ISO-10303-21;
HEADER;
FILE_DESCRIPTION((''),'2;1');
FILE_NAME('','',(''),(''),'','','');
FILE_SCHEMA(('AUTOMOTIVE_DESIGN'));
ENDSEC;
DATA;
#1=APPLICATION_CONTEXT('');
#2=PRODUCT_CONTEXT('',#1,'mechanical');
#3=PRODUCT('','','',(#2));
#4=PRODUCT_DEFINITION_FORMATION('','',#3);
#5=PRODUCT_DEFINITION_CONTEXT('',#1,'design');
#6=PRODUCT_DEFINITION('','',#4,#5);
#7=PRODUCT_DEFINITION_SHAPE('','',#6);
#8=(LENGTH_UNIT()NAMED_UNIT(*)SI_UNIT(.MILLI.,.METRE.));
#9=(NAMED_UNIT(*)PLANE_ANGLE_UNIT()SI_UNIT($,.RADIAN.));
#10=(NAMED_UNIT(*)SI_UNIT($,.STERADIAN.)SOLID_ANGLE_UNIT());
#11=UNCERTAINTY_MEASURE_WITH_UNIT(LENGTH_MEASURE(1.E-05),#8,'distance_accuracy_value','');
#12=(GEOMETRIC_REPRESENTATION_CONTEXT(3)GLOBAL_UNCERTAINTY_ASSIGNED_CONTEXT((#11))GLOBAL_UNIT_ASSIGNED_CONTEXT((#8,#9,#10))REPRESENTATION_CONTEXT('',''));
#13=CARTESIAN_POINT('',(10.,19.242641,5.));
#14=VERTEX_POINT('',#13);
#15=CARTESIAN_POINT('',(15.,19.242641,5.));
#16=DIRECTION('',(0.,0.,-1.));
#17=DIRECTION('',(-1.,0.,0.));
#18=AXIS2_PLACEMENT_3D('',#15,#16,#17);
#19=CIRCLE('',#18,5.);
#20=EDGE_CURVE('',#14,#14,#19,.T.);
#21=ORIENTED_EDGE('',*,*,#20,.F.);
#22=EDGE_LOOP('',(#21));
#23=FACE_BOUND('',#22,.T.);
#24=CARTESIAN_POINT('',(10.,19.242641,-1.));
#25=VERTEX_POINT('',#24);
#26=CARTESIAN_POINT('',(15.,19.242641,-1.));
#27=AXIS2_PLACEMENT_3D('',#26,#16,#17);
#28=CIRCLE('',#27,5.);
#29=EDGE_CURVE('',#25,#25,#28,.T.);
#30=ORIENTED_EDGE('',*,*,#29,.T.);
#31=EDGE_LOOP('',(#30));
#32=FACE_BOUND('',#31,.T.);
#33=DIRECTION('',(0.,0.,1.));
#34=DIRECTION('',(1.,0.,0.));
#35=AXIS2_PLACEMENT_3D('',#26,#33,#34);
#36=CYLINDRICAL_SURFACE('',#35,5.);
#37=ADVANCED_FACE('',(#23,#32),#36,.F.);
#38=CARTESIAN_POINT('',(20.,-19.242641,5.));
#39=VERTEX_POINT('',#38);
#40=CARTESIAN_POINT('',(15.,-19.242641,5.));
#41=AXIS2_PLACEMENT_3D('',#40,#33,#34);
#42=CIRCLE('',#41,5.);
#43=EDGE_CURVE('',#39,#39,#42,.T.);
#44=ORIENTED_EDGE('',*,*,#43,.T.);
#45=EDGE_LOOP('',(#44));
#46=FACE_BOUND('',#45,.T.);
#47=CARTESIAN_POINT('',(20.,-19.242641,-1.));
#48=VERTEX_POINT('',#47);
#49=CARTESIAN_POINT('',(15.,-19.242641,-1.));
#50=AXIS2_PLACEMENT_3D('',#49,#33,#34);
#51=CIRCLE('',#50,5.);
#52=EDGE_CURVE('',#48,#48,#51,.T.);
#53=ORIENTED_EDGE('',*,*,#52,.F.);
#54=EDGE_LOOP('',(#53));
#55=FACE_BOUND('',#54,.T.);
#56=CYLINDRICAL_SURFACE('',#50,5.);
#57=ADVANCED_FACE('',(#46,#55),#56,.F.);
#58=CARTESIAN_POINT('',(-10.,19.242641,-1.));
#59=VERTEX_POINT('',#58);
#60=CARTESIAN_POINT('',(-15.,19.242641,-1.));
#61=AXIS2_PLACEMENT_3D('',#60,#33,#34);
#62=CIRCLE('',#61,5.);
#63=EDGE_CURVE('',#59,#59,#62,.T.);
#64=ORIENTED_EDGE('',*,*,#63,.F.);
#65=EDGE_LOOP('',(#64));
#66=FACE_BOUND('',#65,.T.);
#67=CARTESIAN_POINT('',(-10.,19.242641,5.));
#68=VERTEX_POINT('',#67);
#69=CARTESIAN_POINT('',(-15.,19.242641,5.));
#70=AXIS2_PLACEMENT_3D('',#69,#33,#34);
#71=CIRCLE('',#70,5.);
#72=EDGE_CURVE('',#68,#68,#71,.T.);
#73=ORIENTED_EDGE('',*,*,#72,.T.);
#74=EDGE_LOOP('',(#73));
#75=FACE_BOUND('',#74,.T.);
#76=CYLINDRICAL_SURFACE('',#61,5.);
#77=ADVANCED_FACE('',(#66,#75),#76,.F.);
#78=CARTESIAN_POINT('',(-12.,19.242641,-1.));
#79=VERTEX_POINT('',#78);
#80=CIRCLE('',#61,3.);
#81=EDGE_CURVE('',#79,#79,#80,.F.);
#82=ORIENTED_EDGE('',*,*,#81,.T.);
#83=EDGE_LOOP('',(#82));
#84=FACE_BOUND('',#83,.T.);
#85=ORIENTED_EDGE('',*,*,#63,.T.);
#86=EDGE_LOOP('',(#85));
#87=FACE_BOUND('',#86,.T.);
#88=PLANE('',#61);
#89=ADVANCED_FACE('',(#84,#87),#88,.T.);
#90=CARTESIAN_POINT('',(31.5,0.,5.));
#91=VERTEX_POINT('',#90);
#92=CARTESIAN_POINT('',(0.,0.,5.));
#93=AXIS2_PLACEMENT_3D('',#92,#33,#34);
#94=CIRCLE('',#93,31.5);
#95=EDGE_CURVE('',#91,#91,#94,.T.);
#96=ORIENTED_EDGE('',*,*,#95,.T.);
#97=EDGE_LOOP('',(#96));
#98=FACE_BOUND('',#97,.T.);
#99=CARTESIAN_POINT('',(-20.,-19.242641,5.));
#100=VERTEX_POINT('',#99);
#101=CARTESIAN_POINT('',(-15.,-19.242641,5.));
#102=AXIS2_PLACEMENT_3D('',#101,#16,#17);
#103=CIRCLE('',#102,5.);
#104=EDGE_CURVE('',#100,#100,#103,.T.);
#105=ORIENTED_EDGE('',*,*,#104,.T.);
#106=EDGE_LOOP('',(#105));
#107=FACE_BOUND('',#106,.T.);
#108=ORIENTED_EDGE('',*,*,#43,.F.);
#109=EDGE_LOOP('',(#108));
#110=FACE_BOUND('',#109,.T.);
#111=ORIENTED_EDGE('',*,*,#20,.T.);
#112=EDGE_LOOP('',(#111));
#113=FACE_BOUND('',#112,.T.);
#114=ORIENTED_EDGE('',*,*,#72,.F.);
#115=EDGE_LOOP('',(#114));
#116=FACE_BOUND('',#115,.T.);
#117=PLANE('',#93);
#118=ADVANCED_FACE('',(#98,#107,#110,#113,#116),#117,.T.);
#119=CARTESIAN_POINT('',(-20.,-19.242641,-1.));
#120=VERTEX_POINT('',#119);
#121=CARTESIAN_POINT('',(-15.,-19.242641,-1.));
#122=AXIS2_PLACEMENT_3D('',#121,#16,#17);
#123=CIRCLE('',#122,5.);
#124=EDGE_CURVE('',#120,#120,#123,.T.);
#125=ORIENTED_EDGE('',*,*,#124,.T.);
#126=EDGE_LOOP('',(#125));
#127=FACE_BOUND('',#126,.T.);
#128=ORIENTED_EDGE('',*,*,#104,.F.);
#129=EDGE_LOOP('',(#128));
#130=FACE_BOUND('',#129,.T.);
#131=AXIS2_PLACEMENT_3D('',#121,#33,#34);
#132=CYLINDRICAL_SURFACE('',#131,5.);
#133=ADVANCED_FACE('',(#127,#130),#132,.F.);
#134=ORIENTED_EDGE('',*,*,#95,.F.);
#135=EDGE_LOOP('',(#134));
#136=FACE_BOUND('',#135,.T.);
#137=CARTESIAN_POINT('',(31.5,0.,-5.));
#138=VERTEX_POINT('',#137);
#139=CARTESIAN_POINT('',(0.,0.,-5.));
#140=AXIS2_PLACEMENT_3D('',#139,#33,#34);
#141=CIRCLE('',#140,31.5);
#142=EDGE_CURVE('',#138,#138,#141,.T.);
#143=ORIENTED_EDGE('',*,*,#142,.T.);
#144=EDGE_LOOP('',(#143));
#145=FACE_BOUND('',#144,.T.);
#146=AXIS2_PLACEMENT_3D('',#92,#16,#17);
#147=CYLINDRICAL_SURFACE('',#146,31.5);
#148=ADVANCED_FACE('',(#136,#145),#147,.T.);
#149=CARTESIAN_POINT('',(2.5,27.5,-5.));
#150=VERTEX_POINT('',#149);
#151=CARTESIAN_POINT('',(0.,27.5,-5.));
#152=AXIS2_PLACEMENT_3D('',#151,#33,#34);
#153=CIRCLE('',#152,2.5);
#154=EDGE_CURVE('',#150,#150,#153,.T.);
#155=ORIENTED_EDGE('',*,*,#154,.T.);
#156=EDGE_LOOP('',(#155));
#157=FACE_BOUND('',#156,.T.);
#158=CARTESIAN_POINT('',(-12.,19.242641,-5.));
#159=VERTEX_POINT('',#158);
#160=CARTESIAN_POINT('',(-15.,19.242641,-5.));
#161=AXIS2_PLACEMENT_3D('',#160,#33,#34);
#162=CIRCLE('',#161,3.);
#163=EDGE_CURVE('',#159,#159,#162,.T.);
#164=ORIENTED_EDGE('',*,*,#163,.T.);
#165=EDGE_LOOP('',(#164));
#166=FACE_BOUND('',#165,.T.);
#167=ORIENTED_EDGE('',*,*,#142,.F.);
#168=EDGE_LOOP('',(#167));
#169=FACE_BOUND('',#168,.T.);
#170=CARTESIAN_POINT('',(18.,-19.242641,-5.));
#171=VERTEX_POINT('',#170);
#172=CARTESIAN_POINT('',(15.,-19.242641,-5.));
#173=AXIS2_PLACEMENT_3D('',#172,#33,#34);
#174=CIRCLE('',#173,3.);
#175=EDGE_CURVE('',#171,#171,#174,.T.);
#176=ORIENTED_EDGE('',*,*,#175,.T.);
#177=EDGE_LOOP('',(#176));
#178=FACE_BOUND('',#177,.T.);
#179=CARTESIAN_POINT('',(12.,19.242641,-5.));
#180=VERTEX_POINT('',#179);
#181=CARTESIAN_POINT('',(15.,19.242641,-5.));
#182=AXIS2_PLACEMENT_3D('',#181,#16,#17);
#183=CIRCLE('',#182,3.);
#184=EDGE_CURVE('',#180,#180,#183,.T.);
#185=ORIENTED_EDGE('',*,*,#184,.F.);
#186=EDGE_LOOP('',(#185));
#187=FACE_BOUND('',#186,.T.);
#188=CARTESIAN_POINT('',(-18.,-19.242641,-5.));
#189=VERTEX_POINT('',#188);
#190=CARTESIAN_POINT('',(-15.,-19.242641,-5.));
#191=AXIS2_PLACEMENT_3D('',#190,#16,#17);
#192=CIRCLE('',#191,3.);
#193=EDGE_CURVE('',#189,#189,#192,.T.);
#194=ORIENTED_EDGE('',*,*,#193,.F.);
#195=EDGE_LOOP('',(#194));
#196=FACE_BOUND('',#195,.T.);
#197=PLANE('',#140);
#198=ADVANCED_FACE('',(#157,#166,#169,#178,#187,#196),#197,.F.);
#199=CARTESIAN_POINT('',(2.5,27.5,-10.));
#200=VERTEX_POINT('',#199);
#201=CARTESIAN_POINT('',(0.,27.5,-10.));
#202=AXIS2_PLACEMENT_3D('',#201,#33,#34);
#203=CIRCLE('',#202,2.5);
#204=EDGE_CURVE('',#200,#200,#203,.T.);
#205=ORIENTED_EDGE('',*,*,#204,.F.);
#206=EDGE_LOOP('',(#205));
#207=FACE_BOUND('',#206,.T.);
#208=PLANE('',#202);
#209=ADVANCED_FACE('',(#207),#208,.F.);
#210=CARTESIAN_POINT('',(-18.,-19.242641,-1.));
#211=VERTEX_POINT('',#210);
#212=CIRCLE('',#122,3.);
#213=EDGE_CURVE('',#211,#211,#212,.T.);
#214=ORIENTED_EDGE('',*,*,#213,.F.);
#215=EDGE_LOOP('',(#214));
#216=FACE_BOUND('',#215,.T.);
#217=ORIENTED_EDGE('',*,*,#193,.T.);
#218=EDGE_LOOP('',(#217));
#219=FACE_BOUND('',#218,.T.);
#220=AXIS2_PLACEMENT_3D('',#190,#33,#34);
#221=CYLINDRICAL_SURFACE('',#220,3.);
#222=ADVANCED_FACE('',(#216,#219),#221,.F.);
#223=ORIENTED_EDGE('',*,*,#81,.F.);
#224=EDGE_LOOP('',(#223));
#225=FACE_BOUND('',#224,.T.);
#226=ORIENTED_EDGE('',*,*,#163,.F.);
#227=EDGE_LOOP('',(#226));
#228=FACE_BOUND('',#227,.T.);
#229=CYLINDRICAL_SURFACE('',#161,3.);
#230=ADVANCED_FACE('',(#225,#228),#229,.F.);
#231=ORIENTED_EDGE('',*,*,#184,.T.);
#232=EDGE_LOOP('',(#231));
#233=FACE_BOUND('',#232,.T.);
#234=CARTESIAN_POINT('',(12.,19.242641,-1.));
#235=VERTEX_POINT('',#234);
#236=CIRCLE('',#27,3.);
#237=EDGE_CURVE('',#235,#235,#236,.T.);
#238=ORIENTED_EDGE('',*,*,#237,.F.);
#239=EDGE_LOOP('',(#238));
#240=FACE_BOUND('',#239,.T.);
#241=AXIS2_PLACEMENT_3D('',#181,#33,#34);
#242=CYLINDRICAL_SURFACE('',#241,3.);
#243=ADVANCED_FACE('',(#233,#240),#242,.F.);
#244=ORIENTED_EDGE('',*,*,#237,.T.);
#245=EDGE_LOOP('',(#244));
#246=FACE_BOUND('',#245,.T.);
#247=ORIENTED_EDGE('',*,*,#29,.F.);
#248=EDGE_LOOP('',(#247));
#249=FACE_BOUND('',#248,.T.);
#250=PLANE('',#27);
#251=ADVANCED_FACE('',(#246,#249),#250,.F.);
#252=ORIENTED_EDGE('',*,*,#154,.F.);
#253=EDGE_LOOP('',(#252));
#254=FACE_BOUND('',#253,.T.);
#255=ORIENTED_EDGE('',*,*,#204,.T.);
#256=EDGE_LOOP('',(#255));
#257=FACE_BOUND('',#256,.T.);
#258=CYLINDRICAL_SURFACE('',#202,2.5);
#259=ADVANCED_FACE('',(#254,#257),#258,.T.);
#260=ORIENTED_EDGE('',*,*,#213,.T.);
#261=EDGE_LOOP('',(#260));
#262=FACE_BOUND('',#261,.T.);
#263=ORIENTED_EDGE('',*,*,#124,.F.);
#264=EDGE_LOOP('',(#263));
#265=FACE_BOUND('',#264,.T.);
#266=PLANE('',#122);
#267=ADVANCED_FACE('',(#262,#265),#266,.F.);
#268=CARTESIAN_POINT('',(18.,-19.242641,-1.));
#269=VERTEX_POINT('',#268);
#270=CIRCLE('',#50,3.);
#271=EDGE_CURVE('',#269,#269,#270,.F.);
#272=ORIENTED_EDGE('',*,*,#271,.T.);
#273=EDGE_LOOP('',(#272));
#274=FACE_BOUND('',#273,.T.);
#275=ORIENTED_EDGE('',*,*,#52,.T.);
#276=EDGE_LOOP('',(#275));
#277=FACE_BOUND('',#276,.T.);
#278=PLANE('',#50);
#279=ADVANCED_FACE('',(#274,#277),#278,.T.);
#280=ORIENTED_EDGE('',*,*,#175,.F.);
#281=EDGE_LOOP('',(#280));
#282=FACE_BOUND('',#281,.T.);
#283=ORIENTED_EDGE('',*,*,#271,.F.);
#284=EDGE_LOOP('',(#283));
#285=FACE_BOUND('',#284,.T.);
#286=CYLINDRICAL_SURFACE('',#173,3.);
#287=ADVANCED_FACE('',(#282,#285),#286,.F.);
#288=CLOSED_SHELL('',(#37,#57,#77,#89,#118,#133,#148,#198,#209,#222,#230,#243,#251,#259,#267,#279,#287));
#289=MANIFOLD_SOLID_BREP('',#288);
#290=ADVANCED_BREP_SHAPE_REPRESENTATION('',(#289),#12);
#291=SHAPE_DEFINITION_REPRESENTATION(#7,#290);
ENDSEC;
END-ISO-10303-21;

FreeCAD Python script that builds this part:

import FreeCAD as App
import Part
import Sketcher

V = App.Vector

doc = App.newDocument("Part")
params = doc.addObject("Spreadsheet::Sheet", "Params")
for row, (alias, value) in enumerate([
    ("sketch1_diameter", "63 mm"),
    ("pad1_length", "10 mm"),
    ("sketch2_diameter", "6 mm"),
    ("sketch3_diameter", "5 mm"),
    ("pad2_length", "15 mm"),
    ("sketch4_diameter", "10 mm"),
    ("pocket2_length", "6 mm"),
], start=1):
    params.set(f"A{row}", alias)
    params.set(f"B{row}", "=" + value)
    params.setAlias(f"B{row}", alias)

body = doc.addObject("PartDesign::Body", "Body")

sketch1 = body.newObject("Sketcher::SketchObject", "Sketch")
sketch1.AttachmentSupport = (doc.getObject("XY_Plane"), [""])
sketch1.MapMode = "FlatFace"
sketch1.addGeometry(Part.Circle(V(0, 0, 0), V(0, 0, 1), 31.5), False)
sketch1.addConstraint([
    Sketcher.Constraint("Coincident", 0, 3, -1, 1),
    Sketcher.Constraint("Diameter", 0, 63.0),
])
sketch1.setExpression("Constraints[1]", "Params.sketch1_diameter")
pad1 = body.newObject("PartDesign::Pad", "Pad")
pad1.Profile = sketch1
pad1.setExpression("Length", "Params.pad1_length")
pad1.Midplane = True

sketch2 = body.newObject("Sketcher::SketchObject", "Sketch001")
sketch2.AttachmentSupport = (doc.getObject("XY_Plane"), [""])
sketch2.MapMode = "FlatFace"
sketch2.AttachmentOffset = App.Placement(V(0, 0, 5), App.Rotation())
sketch2.addGeometry([
    Part.Circle(V(-15, 19.242641, 0), V(0, 0, 1), 3),
    Part.Circle(V(-15, -19.242641, 0), V(0, 0, 1), 3),
    Part.Circle(V(15, -19.242641, 0), V(0, 0, 1), 3),
    Part.Circle(V(15, 19.242641, 0), V(0, 0, 1), 3),
], False)
sketch2.addConstraint([
    Sketcher.Constraint("Equal", 0, 1),
    Sketcher.Constraint("Equal", 1, 2),
    Sketcher.Constraint("Equal", 2, 3),
    Sketcher.Constraint("Symmetric", 0, 3, 2, 3, -1, 1),
    Sketcher.Constraint("Symmetric", 1, 3, 3, 3, -1, 1),
    Sketcher.Constraint("Symmetric", 1, 3, 2, 3, -2),
    Sketcher.Constraint("Diameter", 0, 6.0),
    Sketcher.Constraint("DistanceX", 0, 3, -1, 1, 15.0),
    Sketcher.Constraint("DistanceY", -1, 1, 0, 3, 19.242641),
])
sketch2.setExpression("Constraints[6]", "Params.sketch2_diameter")
pocket1 = body.newObject("PartDesign::Pocket", "Pocket")
pocket1.Profile = sketch2
pocket1.Type = "ThroughAll"

sketch3 = body.newObject("Sketcher::SketchObject", "Sketch002")
sketch3.AttachmentSupport = (doc.getObject("XY_Plane"), [""])
sketch3.MapMode = "FlatFace"
sketch3.AttachmentOffset = App.Placement(V(0, 0, 5), App.Rotation())
sketch3.addGeometry(Part.Circle(V(0, 27.5, 0), V(0, 0, 1), 2.5), False)
sketch3.addConstraint([
    Sketcher.Constraint("PointOnObject", 0, 3, -2),
    Sketcher.Constraint("Diameter", 0, 5.0),
    Sketcher.Constraint("DistanceY", -1, 1, 0, 3, 27.5),
])
sketch3.setExpression("Constraints[1]", "Params.sketch3_diameter")
pad2 = body.newObject("PartDesign::Pad", "Pad001")
pad2.Profile = sketch3
pad2.setExpression("Length", "Params.pad2_length")
pad2.Reversed = True

sketch4 = body.newObject("Sketcher::SketchObject", "Sketch003")
sketch4.AttachmentSupport = (doc.getObject("XY_Plane"), [""])
sketch4.MapMode = "FlatFace"
sketch4.AttachmentOffset = App.Placement(V(0, 0, 5), App.Rotation())
sketch4.addGeometry([
    Part.Circle(V(-15, 19.242641, 0), V(0, 0, 1), 5),
    Part.Circle(V(-15, -19.242641, 0), V(0, 0, 1), 5),
    Part.Circle(V(15, -19.242641, 0), V(0, 0, 1), 5),
    Part.Circle(V(15, 19.242641, 0), V(0, 0, 1), 5),
], False)
sketch4.addConstraint([
    Sketcher.Constraint("Equal", 0, 1),
    Sketcher.Constraint("Equal", 1, 2),
    Sketcher.Constraint("Equal", 2, 3),
    Sketcher.Constraint("Symmetric", 0, 3, 2, 3, -1, 1),
    Sketcher.Constraint("Symmetric", 1, 3, 3, 3, -1, 1),
    Sketcher.Constraint("Symmetric", 1, 3, 2, 3, -2),
    Sketcher.Constraint("Diameter", 0, 10.0),
    Sketcher.Constraint("DistanceX", 0, 3, -1, 1, 15.0),
    Sketcher.Constraint("DistanceY", -1, 1, 0, 3, 19.242641),
])
sketch4.setExpression("Constraints[6]", "Params.sketch4_diameter")
pocket2 = body.newObject("PartDesign::Pocket", "Pocket001")
pocket2.Profile = sketch4
pocket2.setExpression("Length", "Params.pocket2_length")

doc.recompute()
